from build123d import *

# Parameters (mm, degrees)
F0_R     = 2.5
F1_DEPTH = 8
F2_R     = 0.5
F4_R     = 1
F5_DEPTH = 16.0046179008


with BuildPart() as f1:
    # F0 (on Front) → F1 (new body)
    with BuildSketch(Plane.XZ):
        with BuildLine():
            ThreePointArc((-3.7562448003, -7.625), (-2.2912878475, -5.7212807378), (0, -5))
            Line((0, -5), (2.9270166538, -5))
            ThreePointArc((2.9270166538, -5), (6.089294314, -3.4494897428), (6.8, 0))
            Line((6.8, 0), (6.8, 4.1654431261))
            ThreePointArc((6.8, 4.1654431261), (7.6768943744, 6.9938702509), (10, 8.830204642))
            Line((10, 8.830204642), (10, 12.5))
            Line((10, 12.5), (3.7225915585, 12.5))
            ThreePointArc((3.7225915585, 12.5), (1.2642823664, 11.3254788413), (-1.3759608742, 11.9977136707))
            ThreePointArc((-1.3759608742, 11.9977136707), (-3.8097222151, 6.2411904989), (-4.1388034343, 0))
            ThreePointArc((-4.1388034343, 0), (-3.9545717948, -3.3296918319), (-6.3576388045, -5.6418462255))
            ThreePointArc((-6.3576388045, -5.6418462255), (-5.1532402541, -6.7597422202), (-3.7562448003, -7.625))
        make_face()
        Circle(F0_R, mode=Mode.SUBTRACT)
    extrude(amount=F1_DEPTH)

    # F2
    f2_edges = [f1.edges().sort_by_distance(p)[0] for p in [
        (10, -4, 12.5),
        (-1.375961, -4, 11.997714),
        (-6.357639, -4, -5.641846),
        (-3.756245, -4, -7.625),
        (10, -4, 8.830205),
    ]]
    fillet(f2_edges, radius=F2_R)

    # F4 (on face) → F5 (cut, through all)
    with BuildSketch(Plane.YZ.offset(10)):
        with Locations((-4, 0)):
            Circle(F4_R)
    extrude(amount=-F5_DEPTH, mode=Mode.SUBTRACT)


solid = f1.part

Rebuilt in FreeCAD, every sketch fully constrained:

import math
import FreeCAD as App
import Part
import Sketcher


def edges_at(feature, points):
    """Names of the edges that pass closest to the given points."""
    edges = feature.Shape.Edges
    near = lambda p: min(range(len(edges)), key=lambda i: edges[i].distToShape(Part.Vertex(*p))[0])
    return sorted({f"Edge{near(p) + 1}" for p in points})

doc = App.newDocument("Part")
body = doc.addObject("PartDesign::Body", "Body")

sketch1 = doc.addObject("Sketcher::SketchObject", "Sketch")
body.addObject(sketch1)
sketch1.AttachmentSupport = (doc.XZ_Plane, [""])
sketch1.MapMode = "FlatFace"
sketch1.addGeometry([
    Part.ArcOfCircle(Part.Circle(App.Vector(0, -9, 0), App.Vector(0, 0, 1), 4), math.radians(90), math.radians(160)),
    Part.LineSegment(App.Vector(0, -5, 0), App.Vector(2.9, -5, 0)),
    Part.ArcOfCircle(Part.Circle(App.Vector(2.9, -1, 0), App.Vector(0, 0, 1), 4), math.radians(-90), math.radians(14)),
    Part.LineSegment(App.Vector(6.8, 0, 0), App.Vector(6.8, 4.2, 0)),
    Part.ArcOfCircle(Part.Circle(App.Vector(11.8, 4.2, 0), App.Vector(0, 0, 1), 5), math.radians(111), math.radians(180)),
    Part.LineSegment(App.Vector(10, 8.8, 0), App.Vector(10, 12.5, 0)),
    Part.LineSegment(App.Vector(10, 12.5, 0), App.Vector(3.7, 12.5, 0)),
    Part.ArcOfCircle(Part.Circle(App.Vector(0.9, 15.3, 0), App.Vector(0, 0, 1), 4), math.radians(-124), math.radians(-45)),
    Part.ArcOfCircle(Part.Circle(App.Vector(13.8, 2.2, 0), App.Vector(0, 0, 1), 18.1), math.radians(147), math.radians(187)),
    Part.ArcOfCircle(Part.Circle(App.Vector(-7.7, -1.9, 0), App.Vector(0, 0, 1), 4), math.radians(-71), math.radians(28)),
    Part.ArcOfCircle(Part.Circle(App.Vector(0, 0, 0), App.Vector(0, 0, 1), 8.5), math.radians(-138), math.radians(-116)),
    Part.Circle(App.Vector(0, 0, 0), App.Vector(0, 0, 1), 2.5),
], False)
sketch1.addConstraint([
    Sketcher.Constraint("Tangent", 0, 1, 1, 1),
    Sketcher.Constraint("Tangent", 1, 2, 2, 1),
    Sketcher.Constraint("Coincident", 2, 2, 3, 1),
    Sketcher.Constraint("Tangent", 3, 2, 4, 2),
    Sketcher.Constraint("Coincident", 4, 1, 5, 1),
    Sketcher.Constraint("Coincident", 5, 2, 6, 1),
    Sketcher.Constraint("Coincident", 6, 2, 7, 2),
    Sketcher.Constraint("Coincident", 7, 1, 8, 1),
    Sketcher.Constraint("Coincident", 8, 2, 9, 2),
    Sketcher.Constraint("Coincident", 9, 1, 10, 1),
    Sketcher.Constraint("Coincident", 10, 2, 0, 2),
    Sketcher.Constraint("Horizontal", 1),
    Sketcher.Constraint("Vertical", 3),
    Sketcher.Constraint("Vertical", 5),
    Sketcher.Constraint("Horizontal", 6),
    Sketcher.Constraint("Coincident", 10, 3, -1, 1),
    Sketcher.Constraint("Coincident", 11, 3, -1, 1),
    Sketcher.Constraint("Equal", 0, 2),
    Sketcher.Constraint("Equal", 2, 7),
    Sketcher.Constraint("Equal", 7, 9),
    Sketcher.Constraint("PointOnObject", 0, 3, -2),
    Sketcher.Constraint("PointOnObject", 2, 2, -1),
    Sketcher.Constraint("PointOnObject", 8, 2, -1),
    Sketcher.Constraint("Diameter", 11, 5.0),
    Sketcher.Constraint("Radius", 0, 4.0),
    Sketcher.Constraint("Radius", 4, 5.0),
    Sketcher.Constraint("Radius", 10, 8.5),
    Sketcher.Constraint("DistanceY", 0, 3, -1, 1, 9.0),
    Sketcher.Constraint("DistanceX", -1, 1, 4, 1, 10.0),
    Sketcher.Constraint("DistanceX", -1, 1, 4, 3, 11.8),
    Sketcher.Constraint("DistanceY", -1, 1, 5, 2, 12.5),
    Sketcher.Constraint("Radius", 8, 18.085658),
    Sketcher.Constraint("DistanceX", 6, 2, 6, 1, 6.277408),
    Sketcher.Constraint("DistanceX", 9, 3, 9, 1, 1.319401),
    Sketcher.Constraint("DistanceY", 3, 1, 3, 2, 4.165443),
    Sketcher.Constraint("DistanceX", -1, 1, 7, 3, 0.872119),
    Sketcher.Constraint("DistanceX", 9, 3, -1, 1, 7.67704),
    Sketcher.Constraint("DistanceX", 7, 1, -1, 1, 1.375961),
])
pad1 = doc.addObject("PartDesign::Pad", "Pad")
body.addObject(pad1)
pad1.Profile = sketch1
pad1.Length = 8
doc.recompute()

fillet = doc.addObject("PartDesign::Fillet", "Fillet")
body.addObject(fillet)
fillet.Base = (pad1, edges_at(pad1, [
    (10, -4, 12.5),
    (-1.376, -4, 11.998),
    (-6.358, -4, -5.642),
    (-3.756, -4, -7.625),
    (10, -4, 8.83),
]))
fillet.Radius = 0.5

sketch2 = doc.addObject("Sketcher::SketchObject", "Sketch001")
body.addObject(sketch2)
sketch2.AttachmentSupport = (doc.YZ_Plane, [""])
sketch2.MapMode = "FlatFace"
sketch2.AttachmentOffset = App.Placement(App.Vector(0, 0, 10), App.Rotation())
sketch2.addGeometry(Part.Circle(App.Vector(-4, 0, 0), App.Vector(0, 0, 1), 1), False)
sketch2.addConstraint([
    Sketcher.Constraint("PointOnObject", 0, 3, -1),
    Sketcher.Constraint("Diameter", 0, 2.0),
    Sketcher.Constraint("DistanceX", 0, 3, -1, 1, 4.0),
])
pocket1 = doc.addObject("PartDesign::Pocket", "Pocket")
body.addObject(pocket1)
pocket1.Profile = sketch2
pocket1.Type = "ThroughAll"

doc.recompute()
